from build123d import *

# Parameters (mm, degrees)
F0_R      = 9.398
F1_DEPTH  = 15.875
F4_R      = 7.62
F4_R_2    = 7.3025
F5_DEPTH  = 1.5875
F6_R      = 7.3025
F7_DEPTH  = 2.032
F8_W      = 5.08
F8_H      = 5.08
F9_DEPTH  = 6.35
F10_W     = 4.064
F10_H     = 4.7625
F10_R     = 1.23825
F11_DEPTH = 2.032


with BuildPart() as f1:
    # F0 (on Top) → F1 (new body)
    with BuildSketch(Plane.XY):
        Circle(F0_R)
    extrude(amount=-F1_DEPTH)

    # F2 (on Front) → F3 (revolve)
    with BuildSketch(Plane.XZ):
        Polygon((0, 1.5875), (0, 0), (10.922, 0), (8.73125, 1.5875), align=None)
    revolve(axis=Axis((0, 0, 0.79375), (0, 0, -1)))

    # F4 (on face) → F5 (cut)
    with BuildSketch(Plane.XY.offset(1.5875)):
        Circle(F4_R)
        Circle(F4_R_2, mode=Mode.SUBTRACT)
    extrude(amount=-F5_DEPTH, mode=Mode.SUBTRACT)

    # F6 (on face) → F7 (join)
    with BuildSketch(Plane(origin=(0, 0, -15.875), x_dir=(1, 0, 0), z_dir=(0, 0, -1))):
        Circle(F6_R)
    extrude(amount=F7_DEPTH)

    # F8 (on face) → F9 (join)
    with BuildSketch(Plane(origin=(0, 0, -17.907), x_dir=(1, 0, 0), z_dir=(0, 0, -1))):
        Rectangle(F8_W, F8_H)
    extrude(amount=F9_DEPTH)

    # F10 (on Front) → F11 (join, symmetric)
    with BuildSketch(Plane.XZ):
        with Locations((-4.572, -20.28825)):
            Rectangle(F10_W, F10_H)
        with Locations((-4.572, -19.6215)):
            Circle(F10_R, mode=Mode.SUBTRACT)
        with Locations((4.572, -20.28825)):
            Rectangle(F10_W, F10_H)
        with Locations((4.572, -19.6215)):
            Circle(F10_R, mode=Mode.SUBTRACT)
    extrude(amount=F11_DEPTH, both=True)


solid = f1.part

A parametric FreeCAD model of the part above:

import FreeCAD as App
import Part
import Sketcher

V = App.Vector
Q = App.Units.Quantity


def add_polygon(sketch, points):
    """Adds a closed chain of lines whose ends are joined by coincident constraints."""
    first, n = sketch.GeometryCount, len(points)
    for a, b in zip(points, points[1:] + points[:1]):
        sketch.addGeometry(Part.LineSegment(App.Vector(*a, 0), App.Vector(*b, 0)), False)
    for i in range(n):
        sketch.addConstraint(Sketcher.Constraint("Coincident", first + i, 2, first + (i + 1) % n, 1))

doc = App.newDocument("Part")
body = doc.addObject("PartDesign::Body", "Body")

sketch1 = doc.addObject("Sketcher::SketchObject", "Sketch")
body.addObject(sketch1)
sketch1.AttachmentSupport = (doc.XY_Plane, [""])
sketch1.MapMode = "FlatFace"
sketch1.addGeometry(Part.Circle(V(0, 0, 0), V(0, 0, 1), 9), False)
sketch1.addConstraint(Sketcher.Constraint("Coincident", 0, 3, -1, 1))
sketch1.addConstraint(Sketcher.Constraint("Diameter", 0, Q("0.74 in")))
pad1 = doc.addObject("PartDesign::Pad", "Pad")
body.addObject(pad1)
pad1.Profile = sketch1
pad1.Length = Q("0.625 in")
pad1.Reversed = True

sketch2 = doc.addObject("Sketcher::SketchObject", "Sketch001")
body.addObject(sketch2)
sketch2.AttachmentSupport = (doc.XZ_Plane, [""])
sketch2.MapMode = "FlatFace"
add_polygon(sketch2, [(0, 1.6), (0, 0), (10.9, 0), (8.7, 1.6)])
sketch2.addConstraint(Sketcher.Constraint("Vertical", 0))
sketch2.addConstraint(Sketcher.Constraint("Horizontal", 1))
sketch2.addConstraint(Sketcher.Constraint("Horizontal", 3))
sketch2.addConstraint(Sketcher.Constraint("Coincident", 0, 2, -1, 1))
sketch2.addConstraint(Sketcher.Constraint("DistanceX", 1, 1, 1, 2, Q("0.43 in")))
sketch2.addConstraint(Sketcher.Constraint("DistanceX", 3, 2, 3, 1, Q("0.34375 in")))
sketch2.addConstraint(Sketcher.Constraint("DistanceY", 0, 2, 0, 1, Q("0.0625 in")))
revolution = doc.addObject("PartDesign::Revolution", "Revolution")
body.addObject(revolution)
revolution.Profile = sketch2
revolution.ReferenceAxis = (sketch2, ["V_Axis"])
revolution.Angle = 360

sketch3 = doc.addObject("Sketcher::SketchObject", "Sketch002")
body.addObject(sketch3)
sketch3.AttachmentSupport = (doc.XY_Plane, [""])
sketch3.MapMode = "FlatFace"
sketch3.AttachmentOffset = App.Placement(V(0, 0, 0.0625 * 25.4), App.Rotation())
sketch3.addGeometry(Part.Circle(V(0, 0, 0), V(0, 0, 1), 8), False)
sketch3.addGeometry(Part.Circle(V(0, 0, 0), V(0, 0, 1), 7), False)
sketch3.addConstraint(Sketcher.Constraint("Coincident", 0, 3, -1, 1))
sketch3.addConstraint(Sketcher.Constraint("Coincident", 1, 3, -1, 1))
sketch3.addConstraint(Sketcher.Constraint("Diameter", 0, Q("0.6 in")))
sketch3.addConstraint(Sketcher.Constraint("Diameter", 1, Q("0.575 in")))
pocket1 = doc.addObject("PartDesign::Pocket", "Pocket")
body.addObject(pocket1)
pocket1.Profile = sketch3
pocket1.Length = Q("0.0625 in")

sketch4 = doc.addObject("Sketcher::SketchObject", "Sketch003")
body.addObject(sketch4)
sketch4.AttachmentSupport = (doc.XY_Plane, [""])
sketch4.MapMode = "FlatFace"
sketch4.AttachmentOffset = App.Placement(V(0, 0, -0.625 * 25.4), App.Rotation())
sketch4.addGeometry(Part.Circle(V(0, 0, 0), V(0, 0, 1), 7), False)
sketch4.addConstraint(Sketcher.Constraint("Coincident", 0, 3, -1, 1))
sketch4.addConstraint(Sketcher.Constraint("Diameter", 0, Q("0.575 in")))
pad2 = doc.addObject("PartDesign::Pad", "Pad001")
body.addObject(pad2)
pad2.Profile = sketch4
pad2.Length = Q("0.08 in")
pad2.Reversed = True

sketch5 = doc.addObject("Sketcher::SketchObject", "Sketch004")
body.addObject(sketch5)
sketch5.AttachmentSupport = (doc.XY_Plane, [""])
sketch5.MapMode = "FlatFace"
sketch5.AttachmentOffset = App.Placement(V(0, 0, -0.705 * 25.4), App.Rotation())
add_polygon(sketch5, [(-3, -3), (-3, 3), (3, 3), (3, -3)])
sketch5.addConstraint(Sketcher.Constraint("Vertical", 0))
sketch5.addConstraint(Sketcher.Constraint("Horizontal", 1))
sketch5.addConstraint(Sketcher.Constraint("Vertical", 2))
sketch5.addConstraint(Sketcher.Constraint("Horizontal", 3))
sketch5.addConstraint(Sketcher.Constraint("Symmetric", 0, 2, 2, 2, -1, 1))
sketch5.addConstraint(Sketcher.Constraint("Equal", 3, 0))
sketch5.addConstraint(Sketcher.Constraint("DistanceX", 1, 1, 1, 2, Q("0.2 in")))
pad3 = doc.addObject("PartDesign::Pad", "Pad002")
body.addObject(pad3)
pad3.Profile = sketch5
pad3.Length = Q("0.25 in")
pad3.Reversed = True

sketch6 = doc.addObject("Sketcher::SketchObject", "Sketch005")
body.addObject(sketch6)
sketch6.AttachmentSupport = (doc.XZ_Plane, [""])
sketch6.MapMode = "FlatFace"
add_polygon(sketch6, [(-6.6, -17.9), (-6.6, -22.7), (-2.5, -22.7), (-2.5, -17.9)])
sketch6.addGeometry(Part.Circle(V(-4.6, -19.6, 0), V(0, 0, 1), 1.2), False)
add_polygon(sketch6, [(2.5, -17.9), (2.5, -22.7), (6.6, -22.7), (6.6, -17.9)])
sketch6.addGeometry(Part.Circle(V(4.6, -19.6, 0), V(0, 0, 1), 1.2), False)
sketch6.addConstraint(Sketcher.Constraint("Vertical", 0))
sketch6.addConstraint(Sketcher.Constraint("Horizontal", 1))
sketch6.addConstraint(Sketcher.Constraint("Vertical", 2))
sketch6.addConstraint(Sketcher.Constraint("Horizontal", 3))
sketch6.addConstraint(Sketcher.Constraint("Vertical", 5))
sketch6.addConstraint(Sketcher.Constraint("Horizontal", 6))
sketch6.addConstraint(Sketcher.Constraint("Vertical", 7))
sketch6.addConstraint(Sketcher.Constraint("Horizontal", 8))
sketch6.addConstraint(Sketcher.Constraint("Equal", 4, 9))
sketch6.addConstraint(Sketcher.Constraint("Symmetric", 4, 3, 9, 3, -2))
sketch6.addConstraint(Sketcher.Constraint("Symmetric", 1, 2, 5, 2, -2))
sketch6.addConstraint(Sketcher.Constraint("Symmetric", 3, 2, 7, 2, -2))
sketch6.addConstraint(Sketcher.Constraint("Diameter", 4, Q("0.0975 in")))
sketch6.addConstraint(Sketcher.Constraint("DistanceX", 1, 1, 1, 2, Q("0.16 in")))
sketch6.addConstraint(Sketcher.Constraint("DistanceX", 1, 2, -1, 1, Q("0.1 in")))
sketch6.addConstraint(Sketcher.Constraint("DistanceY", 0, 2, 0, 1, Q("0.1875 in")))
sketch6.addConstraint(Sketcher.Constraint("DistanceX", 4, 3, -1, 1, Q("0.18 in")))
sketch6.addConstraint(Sketcher.Constraint("DistanceY", 0, 2, 4, 3, Q("0.12 in")))
sketch6.addConstraint(Sketcher.Constraint("DistanceY", 2, 2, -1, 1, Q("0.705 in")))
pad4 = doc.addObject("PartDesign::Pad", "Pad003")
body.addObject(pad4)
pad4.Profile = sketch6
pad4.Length = Q("0.16 in")
pad4.Midplane = True

doc.recompute()
